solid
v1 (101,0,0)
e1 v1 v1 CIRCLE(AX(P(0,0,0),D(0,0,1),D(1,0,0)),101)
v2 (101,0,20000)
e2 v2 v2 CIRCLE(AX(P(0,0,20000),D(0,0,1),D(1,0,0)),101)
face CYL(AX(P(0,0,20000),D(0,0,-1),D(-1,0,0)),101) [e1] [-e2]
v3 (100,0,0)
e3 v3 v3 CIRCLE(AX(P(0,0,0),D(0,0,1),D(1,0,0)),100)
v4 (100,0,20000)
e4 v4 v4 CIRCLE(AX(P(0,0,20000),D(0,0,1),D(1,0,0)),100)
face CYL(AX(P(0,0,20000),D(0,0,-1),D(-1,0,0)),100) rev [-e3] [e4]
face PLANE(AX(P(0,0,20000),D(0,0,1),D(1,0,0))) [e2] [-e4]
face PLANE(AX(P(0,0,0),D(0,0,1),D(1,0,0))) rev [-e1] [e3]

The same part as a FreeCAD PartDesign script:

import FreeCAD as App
import Part
import Sketcher

doc = App.newDocument("Part")
params = doc.addObject("Spreadsheet::Sheet", "Params")
for row, (alias, value) in enumerate([
    ("sketch1_diameter", "202 mm"),
    ("sketch1_diameter2", "200 mm"),
    ("pad1_length", "20000 mm"),
], start=1):
    params.set(f"A{row}", alias)
    params.set(f"B{row}", "=" + value)
    params.setAlias(f"B{row}", alias)

body = doc.addObject("PartDesign::Body", "Body")

sketch1 = body.newObject("Sketcher::SketchObject", "Sketch")
sketch1.AttachmentSupport = (doc.getObject("XY_Plane"), [""])
sketch1.MapMode = "FlatFace"
sketch1.addGeometry(Part.Circle(App.Vector(0, 0, 0), App.Vector(0, 0, 1), 101), False)
sketch1.addGeometry(Part.Circle(App.Vector(0, 0, 0), App.Vector(0, 0, 1), 100), False)
sketch1.addConstraint(Sketcher.Constraint("Coincident", 0, 3, -1, 1))
sketch1.addConstraint(Sketcher.Constraint("Coincident", 1, 3, -1, 1))
sketch1.addConstraint(Sketcher.Constraint("Diameter", 0, 202.0))
sketch1.addConstraint(Sketcher.Constraint("Diameter", 1, 200.0))
sketch1.setExpression("Constraints[2]", "Params.sketch1_diameter")
sketch1.setExpression("Constraints[3]", "Params.sketch1_diameter2")
pad1 = body.newObject("PartDesign::Pad", "Pad")
pad1.Profile = sketch1
pad1.setExpression("Length", "Params.pad1_length")

doc.recompute()
